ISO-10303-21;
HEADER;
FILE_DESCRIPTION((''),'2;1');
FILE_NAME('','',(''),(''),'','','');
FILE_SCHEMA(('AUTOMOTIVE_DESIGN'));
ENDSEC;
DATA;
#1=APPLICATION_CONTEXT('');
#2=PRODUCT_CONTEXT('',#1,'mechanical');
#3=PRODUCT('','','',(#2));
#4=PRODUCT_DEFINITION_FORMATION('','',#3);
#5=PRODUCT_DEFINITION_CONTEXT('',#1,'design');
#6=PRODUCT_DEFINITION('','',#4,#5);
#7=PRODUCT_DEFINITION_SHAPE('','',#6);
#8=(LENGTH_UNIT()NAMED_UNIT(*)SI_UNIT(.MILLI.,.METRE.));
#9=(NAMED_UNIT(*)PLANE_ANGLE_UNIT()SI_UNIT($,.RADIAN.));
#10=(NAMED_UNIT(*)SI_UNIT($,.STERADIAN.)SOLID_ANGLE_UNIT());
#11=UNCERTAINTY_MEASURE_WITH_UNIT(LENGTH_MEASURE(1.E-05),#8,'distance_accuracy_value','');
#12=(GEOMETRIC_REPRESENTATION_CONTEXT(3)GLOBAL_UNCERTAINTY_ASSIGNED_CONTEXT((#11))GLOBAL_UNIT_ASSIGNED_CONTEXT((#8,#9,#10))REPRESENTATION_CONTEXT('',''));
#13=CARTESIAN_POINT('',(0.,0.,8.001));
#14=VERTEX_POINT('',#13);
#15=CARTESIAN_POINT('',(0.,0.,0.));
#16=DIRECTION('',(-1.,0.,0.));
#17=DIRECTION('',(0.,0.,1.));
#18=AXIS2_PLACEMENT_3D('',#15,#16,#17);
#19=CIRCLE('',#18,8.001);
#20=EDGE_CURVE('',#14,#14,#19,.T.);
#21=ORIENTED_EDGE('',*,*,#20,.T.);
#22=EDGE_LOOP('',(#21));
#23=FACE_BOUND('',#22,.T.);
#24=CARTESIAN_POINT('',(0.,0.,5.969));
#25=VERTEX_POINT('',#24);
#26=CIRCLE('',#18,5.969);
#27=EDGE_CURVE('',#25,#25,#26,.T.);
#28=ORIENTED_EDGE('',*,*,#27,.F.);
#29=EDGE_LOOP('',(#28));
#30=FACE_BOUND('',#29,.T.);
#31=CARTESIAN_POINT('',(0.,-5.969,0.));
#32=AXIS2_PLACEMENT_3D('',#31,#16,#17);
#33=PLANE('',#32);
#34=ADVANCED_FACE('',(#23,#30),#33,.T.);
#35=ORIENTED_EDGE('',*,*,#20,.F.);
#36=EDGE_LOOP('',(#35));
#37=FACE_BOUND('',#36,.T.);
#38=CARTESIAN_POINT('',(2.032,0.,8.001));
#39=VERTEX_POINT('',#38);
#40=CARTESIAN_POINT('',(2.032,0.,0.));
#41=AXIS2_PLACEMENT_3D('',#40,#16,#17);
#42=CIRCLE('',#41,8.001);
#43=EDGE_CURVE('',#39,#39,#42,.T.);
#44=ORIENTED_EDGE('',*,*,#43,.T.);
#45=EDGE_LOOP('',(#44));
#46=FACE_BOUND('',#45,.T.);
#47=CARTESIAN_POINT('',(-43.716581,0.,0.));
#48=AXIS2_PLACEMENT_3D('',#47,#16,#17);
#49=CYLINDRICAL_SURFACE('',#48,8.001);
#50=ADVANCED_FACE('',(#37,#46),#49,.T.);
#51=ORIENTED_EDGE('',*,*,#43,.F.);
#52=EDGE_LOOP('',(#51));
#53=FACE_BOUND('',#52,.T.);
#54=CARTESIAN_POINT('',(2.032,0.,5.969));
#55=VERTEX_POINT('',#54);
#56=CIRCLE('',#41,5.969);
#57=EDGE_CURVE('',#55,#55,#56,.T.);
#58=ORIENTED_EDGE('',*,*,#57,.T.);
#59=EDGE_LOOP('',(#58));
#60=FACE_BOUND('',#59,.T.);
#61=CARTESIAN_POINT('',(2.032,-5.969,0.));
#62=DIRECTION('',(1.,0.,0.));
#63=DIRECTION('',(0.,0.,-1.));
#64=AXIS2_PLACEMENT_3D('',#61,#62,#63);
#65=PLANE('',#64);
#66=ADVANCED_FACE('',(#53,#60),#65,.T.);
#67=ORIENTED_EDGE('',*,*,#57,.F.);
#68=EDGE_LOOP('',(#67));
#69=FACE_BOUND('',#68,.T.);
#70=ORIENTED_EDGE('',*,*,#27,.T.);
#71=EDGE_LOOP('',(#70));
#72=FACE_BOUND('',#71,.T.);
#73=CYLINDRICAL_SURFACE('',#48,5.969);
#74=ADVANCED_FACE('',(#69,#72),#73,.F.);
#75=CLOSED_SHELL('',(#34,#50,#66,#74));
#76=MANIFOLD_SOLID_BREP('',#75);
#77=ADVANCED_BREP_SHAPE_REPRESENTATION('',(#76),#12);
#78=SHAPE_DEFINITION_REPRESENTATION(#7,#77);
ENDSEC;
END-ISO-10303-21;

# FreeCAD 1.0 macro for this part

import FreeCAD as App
import Part
import Sketcher
Q = App.Units.Quantity

doc = App.newDocument("Part")
params = doc.addObject("Spreadsheet::Sheet", "Params")
for row, (alias, value) in enumerate([
    ("sketch1_width", "0.08 in"),
    ("revolution_angle", "360 deg"),
], start=1):
    params.set(f"A{row}", alias)
    params.set(f"B{row}", "=" + value)
    params.setAlias(f"B{row}", alias)

body = doc.addObject("PartDesign::Body", "Body")

# Sketch on XY plane
sketch1 = body.newObject("Sketcher::SketchObject", "Sketch")
sketch1.AttachmentSupport = (doc.getObject("XY_Plane"), [""])
sketch1.MapMode = "FlatFace"
sketch1.addGeometry([
    Part.LineSegment(App.Vector(0, -6, 0), App.Vector(0, -8, 0)),
    Part.LineSegment(App.Vector(0, -8, 0), App.Vector(2, -8, 0)),
    Part.LineSegment(App.Vector(2, -8, 0), App.Vector(2, -6, 0)),
    Part.LineSegment(App.Vector(2, -6, 0), App.Vector(0, -6, 0)),
], False)
sketch1.addConstraint([
    Sketcher.Constraint("Coincident", 0, 2, 1, 1),
    Sketcher.Constraint("Coincident", 1, 2, 2, 1),
    Sketcher.Constraint("Coincident", 2, 2, 3, 1),
    Sketcher.Constraint("Coincident", 3, 2, 0, 1),
    Sketcher.Constraint("Vertical", 0),
    Sketcher.Constraint("Horizontal", 1),
    Sketcher.Constraint("Vertical", 2),
    Sketcher.Constraint("Horizontal", 3),
    Sketcher.Constraint("PointOnObject", 0, 2, -2),
    Sketcher.Constraint("Equal", 3, 0),
    Sketcher.Constraint("DistanceX", 1, 1, 1, 2, Q("0.08 in")),
    Sketcher.Constraint("DistanceY", 0, 2, -1, 1, Q("0.315 in")),
])
sketch1.setExpression("Constraints[10]", "Params.sketch1_width")
revolution = body.newObject("PartDesign::Revolution", "Revolution")
revolution.Profile = sketch1
revolution.ReferenceAxis = (sketch1, ["H_Axis"])
revolution.setExpression("Angle", "Params.revolution_angle")

doc.recompute()
